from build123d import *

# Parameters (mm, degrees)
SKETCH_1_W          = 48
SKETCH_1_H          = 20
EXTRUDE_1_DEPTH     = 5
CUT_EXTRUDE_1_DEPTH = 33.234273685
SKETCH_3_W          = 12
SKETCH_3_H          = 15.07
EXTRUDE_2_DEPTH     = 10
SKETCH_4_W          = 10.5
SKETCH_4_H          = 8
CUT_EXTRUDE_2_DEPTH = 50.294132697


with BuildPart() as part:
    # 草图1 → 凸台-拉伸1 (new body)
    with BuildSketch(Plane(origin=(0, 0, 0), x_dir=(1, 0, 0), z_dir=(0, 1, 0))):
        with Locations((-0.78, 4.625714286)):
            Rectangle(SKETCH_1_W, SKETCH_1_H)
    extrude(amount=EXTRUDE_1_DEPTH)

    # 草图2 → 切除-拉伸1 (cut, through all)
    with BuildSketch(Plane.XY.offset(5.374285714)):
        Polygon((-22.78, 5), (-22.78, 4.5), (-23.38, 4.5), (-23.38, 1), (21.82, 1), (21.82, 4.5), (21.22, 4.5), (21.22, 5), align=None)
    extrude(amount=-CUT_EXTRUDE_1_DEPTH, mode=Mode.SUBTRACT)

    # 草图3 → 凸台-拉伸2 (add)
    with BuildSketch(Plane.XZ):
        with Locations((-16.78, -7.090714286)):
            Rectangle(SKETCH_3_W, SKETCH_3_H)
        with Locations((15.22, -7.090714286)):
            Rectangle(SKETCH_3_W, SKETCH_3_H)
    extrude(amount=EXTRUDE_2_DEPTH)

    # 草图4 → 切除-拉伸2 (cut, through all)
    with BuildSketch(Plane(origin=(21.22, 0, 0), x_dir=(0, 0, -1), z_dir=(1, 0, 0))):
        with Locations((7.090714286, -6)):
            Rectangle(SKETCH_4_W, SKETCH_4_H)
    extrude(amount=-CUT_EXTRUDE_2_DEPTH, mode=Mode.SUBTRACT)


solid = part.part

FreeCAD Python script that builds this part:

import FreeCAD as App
import Part
import Sketcher

V = App.Vector


def add_polygon(sketch, points):
    """Adds a closed chain of lines whose ends are joined by coincident constraints."""
    first, n = sketch.GeometryCount, len(points)
    for a, b in zip(points, points[1:] + points[:1]):
        sketch.addGeometry(Part.LineSegment(App.Vector(*a, 0), App.Vector(*b, 0)), False)
    for i in range(n):
        sketch.addConstraint(Sketcher.Constraint("Coincident", first + i, 2, first + (i + 1) % n, 1))

doc = App.newDocument("Part")
body = doc.addObject("PartDesign::Body", "Body")

# Sketch on XZ plane
sketch1 = body.newObject("Sketcher::SketchObject", "Sketch")
sketch1.AttachmentSupport = (doc.getObject("XZ_Plane"), [""])
sketch1.MapMode = "FlatFace"
add_polygon(sketch1, [(-25, -15), (-25, 5), (23, 5), (23, -15)])  # lines 0-3
sketch1.addConstraint(Sketcher.Constraint("Vertical", 0))
sketch1.addConstraint(Sketcher.Constraint("Horizontal", 1))
sketch1.addConstraint(Sketcher.Constraint("Vertical", 2))
sketch1.addConstraint(Sketcher.Constraint("Horizontal", 3))
sketch1.addConstraint(Sketcher.Constraint("DistanceX", 1, 1, 1, 2, 48.0))
sketch1.addConstraint(Sketcher.Constraint("DistanceY", 0, 1, 0, 2, 20.0))
sketch1.addConstraint(Sketcher.Constraint("DistanceX", 0, 2, -1, 1, 24.78))
sketch1.addConstraint(Sketcher.Constraint("DistanceY", -1, 1, 0, 2, 5.374286))
pad1 = body.newObject("PartDesign::Pad", "Pad")
pad1.Profile = sketch1
pad1.Length = 5
pad1.Reversed = True

# Sketch on XY plane
sketch2 = body.newObject("Sketcher::SketchObject", "Sketch001")
sketch2.AttachmentSupport = (doc.getObject("XY_Plane"), [""])
sketch2.MapMode = "FlatFace"
sketch2.AttachmentOffset = App.Placement(V(0, 0, 5.374286), App.Rotation())
add_polygon(sketch2, [(-22.8, 5), (-22.8, 4.5), (-23.4, 4.5), (-23.4, 1), (21.8, 1), (21.8, 4.5), (21.2, 4.5), (21.2, 5)])  # lines 0-7
sketch2.addConstraint(Sketcher.Constraint("Vertical", 0))
sketch2.addConstraint(Sketcher.Constraint("Horizontal", 1))
sketch2.addConstraint(Sketcher.Constraint("Vertical", 2))
sketch2.addConstraint(Sketcher.Constraint("Horizontal", 3))
sketch2.addConstraint(Sketcher.Constraint("Vertical", 4))
sketch2.addConstraint(Sketcher.Constraint("Horizontal", 5))
sketch2.addConstraint(Sketcher.Constraint("Vertical", 6))
sketch2.addConstraint(Sketcher.Constraint("Horizontal", 7))
sketch2.addConstraint(Sketcher.Constraint("Horizontal", 1, 2, 4, 2))
sketch2.addConstraint(Sketcher.Constraint("Equal", 1, 5))
sketch2.addConstraint(Sketcher.Constraint("DistanceX", 7, 2, 7, 1, 44.0))
sketch2.addConstraint(Sketcher.Constraint("DistanceX", 1, 2, 1, 1, 0.6))
sketch2.addConstraint(Sketcher.Constraint("DistanceY", 0, 2, 0, 1, 0.5))
sketch2.addConstraint(Sketcher.Constraint("DistanceY", 2, 2, 2, 1, 3.5))
sketch2.addConstraint(Sketcher.Constraint("DistanceY", -1, 1, 2, 2, 1.0))
sketch2.addConstraint(Sketcher.Constraint("DistanceX", 0, 2, -1, 1, 22.78))
pocket1 = body.newObject("PartDesign::Pocket", "Pocket")
pocket1.Profile = sketch2
pocket1.Type = "ThroughAll"

# Sketch on XZ plane
sketch3 = body.newObject("Sketcher::SketchObject", "Sketch002")
sketch3.AttachmentSupport = (doc.getObject("XZ_Plane"), [""])
sketch3.MapMode = "FlatFace"
add_polygon(sketch3, [(-23, 0), (-23, -15), (-11, -15), (-11, 0)])  # lines 0-3
add_polygon(sketch3, [(9, 0), (9, -15), (21, -15), (21, 0)])  # lines 4-7
sketch3.addConstraint(Sketcher.Constraint("Vertical", 0))
sketch3.addConstraint(Sketcher.Constraint("Horizontal", 1))
sketch3.addConstraint(Sketcher.Constraint("Vertical", 2))
sketch3.addConstraint(Sketcher.Constraint("Horizontal", 3))
sketch3.addConstraint(Sketcher.Constraint("Vertical", 4))
sketch3.addConstraint(Sketcher.Constraint("Horizontal", 5))
sketch3.addConstraint(Sketcher.Constraint("Vertical", 6))
sketch3.addConstraint(Sketcher.Constraint("Horizontal", 7))
sketch3.addConstraint(Sketcher.Constraint("Horizontal", 1, 2, 4, 2))
sketch3.addConstraint(Sketcher.Constraint("Horizontal", 3, 2, 6, 2))
sketch3.addConstraint(Sketcher.Constraint("Equal", 3, 5))
sketch3.addConstraint(Sketcher.Constraint("DistanceX", 1, 1, 1, 2, 12.0))
sketch3.addConstraint(Sketcher.Constraint("DistanceX", 1, 2, 4, 2, 20.0))
sketch3.addConstraint(Sketcher.Constraint("DistanceY", 0, 2, 0, 1, 15.07))
sketch3.addConstraint(Sketcher.Constraint("DistanceX", 0, 2, -1, 1, 22.78))
sketch3.addConstraint(Sketcher.Constraint("DistanceY", 0, 2, -1, 1, 14.625714))
pad2 = body.newObject("PartDesign::Pad", "Pad001")
pad2.Profile = sketch3
pad2.Length = 10

# Sketch on YZ plane
sketch4 = body.newObject("Sketcher::SketchObject", "Sketch003")
sketch4.AttachmentSupport = (doc.getObject("YZ_Plane"), [""])
sketch4.MapMode = "FlatFace"
sketch4.AttachmentOffset = App.Placement(V(0, 0, 21.22), App.Rotation())
add_polygon(sketch4, [(-2, -2), (-10, -2), (-10, -12), (-2, -12)])  # lines 0-3
sketch4.addConstraint(Sketcher.Constraint("Horizontal", 0))
sketch4.addConstraint(Sketcher.Constraint("Vertical", 1))
sketch4.addConstraint(Sketcher.Constraint("Horizontal", 2))
sketch4.addConstraint(Sketcher.Constraint("Vertical", 3))
sketch4.addConstraint(Sketcher.Constraint("DistanceX", 0, 2, 0, 1, 8.0))
sketch4.addConstraint(Sketcher.Constraint("DistanceY", 1, 2, 1, 1, 10.5))
sketch4.addConstraint(Sketcher.Constraint("DistanceX", 0, 2, -1, 1, 10.0))
sketch4.addConstraint(Sketcher.Constraint("DistanceY", 0, 2, -1, 1, 1.840714))
pocket2 = body.newObject("PartDesign::Pocket", "Pocket001")
pocket2.Profile = sketch4
pocket2.Type = "ThroughAll"

doc.recompute()
